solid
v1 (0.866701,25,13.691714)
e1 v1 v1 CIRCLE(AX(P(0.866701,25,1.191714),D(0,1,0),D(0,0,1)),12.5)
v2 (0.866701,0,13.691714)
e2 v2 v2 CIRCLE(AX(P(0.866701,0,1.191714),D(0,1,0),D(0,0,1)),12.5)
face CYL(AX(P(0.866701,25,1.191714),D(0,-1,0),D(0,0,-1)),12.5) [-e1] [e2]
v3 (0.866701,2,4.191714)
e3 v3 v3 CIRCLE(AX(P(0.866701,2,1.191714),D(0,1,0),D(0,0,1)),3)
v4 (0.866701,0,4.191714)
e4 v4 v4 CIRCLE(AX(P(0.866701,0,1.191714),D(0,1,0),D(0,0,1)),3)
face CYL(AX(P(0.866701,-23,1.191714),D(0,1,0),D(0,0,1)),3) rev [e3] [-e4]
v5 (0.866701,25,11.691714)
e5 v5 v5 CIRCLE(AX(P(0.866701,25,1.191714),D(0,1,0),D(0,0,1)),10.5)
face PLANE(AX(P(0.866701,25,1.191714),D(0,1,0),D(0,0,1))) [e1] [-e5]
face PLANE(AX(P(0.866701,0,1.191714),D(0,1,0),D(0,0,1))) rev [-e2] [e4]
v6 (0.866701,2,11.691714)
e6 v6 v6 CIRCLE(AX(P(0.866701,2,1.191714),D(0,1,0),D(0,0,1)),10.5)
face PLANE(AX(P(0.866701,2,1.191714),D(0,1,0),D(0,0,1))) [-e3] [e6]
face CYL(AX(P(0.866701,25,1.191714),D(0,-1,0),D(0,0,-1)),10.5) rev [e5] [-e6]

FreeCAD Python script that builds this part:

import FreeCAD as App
import Part
import Sketcher

V = App.Vector


def faces_at(feature, points):
    """Names of the faces that lie closest to the given points."""
    faces = feature.Shape.Faces
    near = lambda p: min(range(len(faces)), key=lambda i: faces[i].distToShape(Part.Vertex(*p))[0])
    return sorted({f"Face{near(p) + 1}" for p in points})

doc = App.newDocument("Part")
body = doc.addObject("PartDesign::Body", "Body")

# Sketch on XZ plane
sketch1 = doc.addObject("Sketcher::SketchObject", "Sketch")
body.addObject(sketch1)
sketch1.AttachmentSupport = (doc.XZ_Plane, [""])
sketch1.MapMode = "FlatFace"
sketch1.addGeometry(Part.Circle(V(1, 1, 0), V(0, 0, 1), 12), False)
sketch1.addConstraint([
    Sketcher.Constraint("Diameter", 0, 25.0),
    Sketcher.Constraint("DistanceX", -1, 1, 0, 3, 0.866701),
    Sketcher.Constraint("DistanceY", -1, 1, 0, 3, 1.191714),
])
pad1 = doc.addObject("PartDesign::Pad", "Pad")
body.addObject(pad1)
pad1.Profile = sketch1
pad1.Length = 25
pad1.Reversed = True
doc.recompute()

thickness = doc.addObject("PartDesign::Thickness", "Thickness")
body.addObject(thickness)
thickness.Base = (pad1, faces_at(pad1, [(0.867, 25, 1.192)]))
thickness.Value = 2
thickness.Reversed = True
thickness.Join = "Intersection"

# Sketch on XZ plane
sketch2 = doc.addObject("Sketcher::SketchObject", "Sketch001")
body.addObject(sketch2)
sketch2.AttachmentSupport = (doc.XZ_Plane, [""])
sketch2.MapMode = "FlatFace"
sketch2.AttachmentOffset = App.Placement(V(0, 0, -2), App.Rotation())
sketch2.addGeometry(Part.Circle(V(0.9, 1.2, 0), V(0, 0, 1), 3), False)
sketch2.addConstraint([
    Sketcher.Constraint("Diameter", 0, 6.0),
    Sketcher.Constraint("DistanceX", -1, 1, 0, 3, 0.866701),
    Sketcher.Constraint("DistanceY", -1, 1, 0, 3, 1.191714),
])
pocket1 = doc.addObject("PartDesign::Pocket", "Pocket")
body.addObject(pocket1)
pocket1.Profile = sketch2
pocket1.Length = 25
pocket1.Reversed = True

doc.recompute()
